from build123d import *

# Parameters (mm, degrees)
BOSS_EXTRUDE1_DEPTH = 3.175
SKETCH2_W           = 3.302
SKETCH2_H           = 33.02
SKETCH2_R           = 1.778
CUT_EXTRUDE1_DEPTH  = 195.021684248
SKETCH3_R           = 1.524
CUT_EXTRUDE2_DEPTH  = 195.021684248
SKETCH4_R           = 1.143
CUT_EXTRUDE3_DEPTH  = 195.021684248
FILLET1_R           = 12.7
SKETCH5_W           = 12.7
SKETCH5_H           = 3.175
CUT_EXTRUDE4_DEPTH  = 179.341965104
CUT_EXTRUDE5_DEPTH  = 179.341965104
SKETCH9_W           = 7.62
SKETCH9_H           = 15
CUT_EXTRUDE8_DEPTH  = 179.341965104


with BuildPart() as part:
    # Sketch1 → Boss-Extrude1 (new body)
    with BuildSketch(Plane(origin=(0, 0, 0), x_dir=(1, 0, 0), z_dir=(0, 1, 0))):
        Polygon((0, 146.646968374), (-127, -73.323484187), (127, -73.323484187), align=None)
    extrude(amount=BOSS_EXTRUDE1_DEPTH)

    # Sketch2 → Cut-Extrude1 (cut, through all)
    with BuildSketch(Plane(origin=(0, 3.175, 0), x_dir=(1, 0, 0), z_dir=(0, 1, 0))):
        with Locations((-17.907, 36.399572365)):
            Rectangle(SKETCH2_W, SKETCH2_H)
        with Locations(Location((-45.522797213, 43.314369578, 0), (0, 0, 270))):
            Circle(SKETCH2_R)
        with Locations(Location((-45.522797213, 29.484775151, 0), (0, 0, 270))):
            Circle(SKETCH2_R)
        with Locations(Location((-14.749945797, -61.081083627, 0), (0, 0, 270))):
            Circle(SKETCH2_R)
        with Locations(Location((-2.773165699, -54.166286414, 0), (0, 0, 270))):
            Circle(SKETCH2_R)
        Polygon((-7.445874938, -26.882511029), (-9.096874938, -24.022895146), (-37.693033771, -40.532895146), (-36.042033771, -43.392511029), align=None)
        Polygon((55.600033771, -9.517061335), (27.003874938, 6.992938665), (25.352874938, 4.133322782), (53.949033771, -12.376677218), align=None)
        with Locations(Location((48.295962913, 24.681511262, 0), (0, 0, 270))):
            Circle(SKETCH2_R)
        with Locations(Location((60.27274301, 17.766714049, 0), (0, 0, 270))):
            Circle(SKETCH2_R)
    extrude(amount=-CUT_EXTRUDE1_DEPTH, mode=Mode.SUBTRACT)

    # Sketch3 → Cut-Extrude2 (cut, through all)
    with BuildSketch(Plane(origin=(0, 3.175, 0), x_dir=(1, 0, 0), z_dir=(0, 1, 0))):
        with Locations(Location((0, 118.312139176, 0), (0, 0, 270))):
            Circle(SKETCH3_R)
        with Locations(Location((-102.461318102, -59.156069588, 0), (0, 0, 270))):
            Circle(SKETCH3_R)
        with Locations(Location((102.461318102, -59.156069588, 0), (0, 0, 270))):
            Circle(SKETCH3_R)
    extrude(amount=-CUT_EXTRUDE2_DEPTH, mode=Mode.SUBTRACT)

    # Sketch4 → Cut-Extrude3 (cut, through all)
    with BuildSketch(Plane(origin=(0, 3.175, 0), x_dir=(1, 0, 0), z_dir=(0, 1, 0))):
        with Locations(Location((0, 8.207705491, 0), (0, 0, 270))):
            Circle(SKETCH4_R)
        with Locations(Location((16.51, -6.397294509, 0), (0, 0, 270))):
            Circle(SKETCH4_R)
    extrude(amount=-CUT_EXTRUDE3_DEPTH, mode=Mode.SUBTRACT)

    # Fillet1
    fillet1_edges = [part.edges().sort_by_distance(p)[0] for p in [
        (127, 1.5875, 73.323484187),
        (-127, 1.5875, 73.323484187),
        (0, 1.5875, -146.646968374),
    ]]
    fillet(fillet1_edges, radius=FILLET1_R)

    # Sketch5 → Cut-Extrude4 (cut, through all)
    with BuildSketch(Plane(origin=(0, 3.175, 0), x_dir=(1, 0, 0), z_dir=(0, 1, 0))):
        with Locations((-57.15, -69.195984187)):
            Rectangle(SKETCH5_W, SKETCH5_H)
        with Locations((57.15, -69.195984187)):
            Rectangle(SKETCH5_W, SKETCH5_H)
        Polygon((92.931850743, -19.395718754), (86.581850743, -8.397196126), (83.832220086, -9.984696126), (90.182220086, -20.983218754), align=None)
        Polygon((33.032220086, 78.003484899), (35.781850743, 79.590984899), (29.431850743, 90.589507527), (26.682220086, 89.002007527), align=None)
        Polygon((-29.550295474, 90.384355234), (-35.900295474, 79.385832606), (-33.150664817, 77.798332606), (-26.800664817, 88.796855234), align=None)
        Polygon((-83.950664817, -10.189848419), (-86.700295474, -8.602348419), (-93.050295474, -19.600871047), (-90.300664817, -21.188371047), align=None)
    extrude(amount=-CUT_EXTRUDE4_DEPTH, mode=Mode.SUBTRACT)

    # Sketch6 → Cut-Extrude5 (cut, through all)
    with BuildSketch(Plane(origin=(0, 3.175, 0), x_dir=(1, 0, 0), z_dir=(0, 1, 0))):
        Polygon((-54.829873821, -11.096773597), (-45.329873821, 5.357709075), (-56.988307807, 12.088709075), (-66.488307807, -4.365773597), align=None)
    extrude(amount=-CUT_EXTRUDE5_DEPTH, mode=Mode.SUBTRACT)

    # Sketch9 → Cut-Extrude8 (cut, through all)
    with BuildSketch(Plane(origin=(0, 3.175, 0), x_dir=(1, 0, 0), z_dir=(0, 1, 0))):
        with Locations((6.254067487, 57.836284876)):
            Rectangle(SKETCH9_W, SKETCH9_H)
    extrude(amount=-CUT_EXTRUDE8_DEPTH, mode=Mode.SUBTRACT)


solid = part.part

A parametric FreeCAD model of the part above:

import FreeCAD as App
import Part
import Sketcher
Q = App.Units.Quantity


def edges_at(feature, points):
    """Names of the edges that pass closest to the given points."""
    edges = feature.Shape.Edges
    near = lambda p: min(range(len(edges)), key=lambda i: edges[i].distToShape(Part.Vertex(*p))[0])
    return sorted({f"Edge{near(p) + 1}" for p in points})


def add_polygon(sketch, points):
    """Adds a closed chain of lines whose ends are joined by coincident constraints."""
    first, n = sketch.GeometryCount, len(points)
    for a, b in zip(points, points[1:] + points[:1]):
        sketch.addGeometry(Part.LineSegment(App.Vector(*a, 0), App.Vector(*b, 0)), False)
    for i in range(n):
        sketch.addConstraint(Sketcher.Constraint("Coincident", first + i, 2, first + (i + 1) % n, 1))

doc = App.newDocument("Part")
body = doc.addObject("PartDesign::Body", "Body")

sketch1 = body.newObject("Sketcher::SketchObject", "Sketch")
sketch1.AttachmentSupport = (doc.getObject("XZ_Plane"), [""])
sketch1.MapMode = "FlatFace"
add_polygon(sketch1, [(0, -147), (-127, 73), (127, 73)])
sketch1.addConstraint(Sketcher.Constraint("Horizontal", 1))
sketch1.addConstraint(Sketcher.Constraint("PointOnObject", 2, 2, -2))
sketch1.addConstraint(Sketcher.Constraint("Equal", 0, 2))
sketch1.addConstraint(Sketcher.Constraint("DistanceX", 1, 1, 1, 2, Q("10 in")))
sketch1.addConstraint(Sketcher.Constraint("Distance", 0, Q("10 in")))
sketch1.addConstraint(Sketcher.Constraint("DistanceY", 2, 2, -1, 1, Q("146.646968 mm")))
pad1 = body.newObject("PartDesign::Pad", "Pad")
pad1.Profile = sketch1
pad1.Length = Q("0.125 in")
pad1.Reversed = True

sketch2 = body.newObject("Sketcher::SketchObject", "Sketch001")
sketch2.AttachmentSupport = (doc.getObject("XZ_Plane"), [""])
sketch2.MapMode = "FlatFace"
sketch2.AttachmentOffset = App.Placement(App.Vector(0, 0, -0.125 * 25.4), App.Rotation())
add_polygon(sketch2, [(-19.6, -52.9), (-19.6, -19.9), (-16.3, -19.9), (-16.3, -52.9)])
sketch2.addGeometry(Part.Circle(App.Vector(-45.5, -43.3, 0), App.Vector(0, 0, 1), 1.8), False)
sketch2.addGeometry(Part.Circle(App.Vector(-45.5, -29.5, 0), App.Vector(0, 0, 1), 1.8), False)
sketch2.addGeometry(Part.Circle(App.Vector(-14.7, 61.1, 0), App.Vector(0, 0, 1), 1.8), False)
sketch2.addGeometry(Part.Circle(App.Vector(-2.8, 54.2, 0), App.Vector(0, 0, 1), 1.8), False)
add_polygon(sketch2, [(-7.4, 26.9), (-9.1, 24), (-37.7, 40.5), (-36, 43.4)])
add_polygon(sketch2, [(55.6, 9.5), (27, -7), (25.4, -4.1), (53.9, 12.4)])
sketch2.addGeometry(Part.Circle(App.Vector(48.3, -24.7, 0), App.Vector(0, 0, 1), 1.8), False)
sketch2.addGeometry(Part.Circle(App.Vector(60.3, -17.8, 0), App.Vector(0, 0, 1), 1.8), False)
sketch2.addConstraint(Sketcher.Constraint("Vertical", 0))
sketch2.addConstraint(Sketcher.Constraint("Horizontal", 1))
sketch2.addConstraint(Sketcher.Constraint("Vertical", 2))
sketch2.addConstraint(Sketcher.Constraint("Horizontal", 3))
sketch2.addConstraint(Sketcher.Constraint("Equal", 4, 5))
sketch2.addConstraint(Sketcher.Constraint("Equal", 5, 6))
sketch2.addConstraint(Sketcher.Constraint("Equal", 6, 7))
sketch2.addConstraint(Sketcher.Constraint("Equal", 7, 16))
sketch2.addConstraint(Sketcher.Constraint("Equal", 16, 17))
sketch2.addConstraint(Sketcher.Constraint("Perpendicular", 8, 9))
sketch2.addConstraint(Sketcher.Constraint("Perpendicular", 9, 10))
sketch2.addConstraint(Sketcher.Constraint("Perpendicular", 10, 11))
sketch2.addConstraint(Sketcher.Constraint("Perpendicular", 12, 13))
sketch2.addConstraint(Sketcher.Constraint("Perpendicular", 13, 14))
sketch2.addConstraint(Sketcher.Constraint("Perpendicular", 14, 15))
sketch2.addConstraint(Sketcher.Constraint("Vertical", 4, 3, 5, 3))
sketch2.addConstraint(Sketcher.Constraint("Equal", 11, 12))
sketch2.addConstraint(Sketcher.Constraint("Equal", 10, 13))
sketch2.addConstraint(Sketcher.Constraint("Diameter", 4, Q("0.14 in")))
sketch2.addConstraint(Sketcher.Constraint("DistanceY", 0, 1, 0, 2, Q("1.3 in")))
sketch2.addConstraint(Sketcher.Constraint("Angle", 8, Q("-120 deg")))
sketch2.addConstraint(Sketcher.Constraint("Angle", 12, Q("-150 deg")))
sketch2.addConstraint(Sketcher.Constraint("Distance", 9, Q("1.3 in")))
sketch2.addConstraint(Sketcher.Constraint("DistanceX", 1, 1, 1, 2, Q("0.13 in")))
sketch2.addConstraint(Sketcher.Constraint("Distance", 8, Q("0.13 in")))
sketch2.addConstraint(Sketcher.Constraint("DistanceX", 0, 2, -1, 1, Q("0.77 in")))
sketch2.addConstraint(Sketcher.Constraint("DistanceY", 17, 3, 7, 3, Q("71.933 mm")))
sketch2.addConstraint(Sketcher.Constraint("DistanceY", 4, 3, -1, 1, Q("43.31437 mm")))
sketch2.addConstraint(Sketcher.Constraint("DistanceY", 16, 3, -1, 1, Q("24.681511 mm")))
sketch2.addConstraint(Sketcher.Constraint("DistanceY", -1, 1, 10, 2, Q("43.392511 mm")))
sketch2.addConstraint(Sketcher.Constraint("DistanceY", 12, 2, -1, 1, Q("6.992939 mm")))
sketch2.addConstraint(Sketcher.Constraint("DistanceX", 5, 3, 6, 3, Q("30.772851 mm")))
sketch2.addConstraint(Sketcher.Constraint("DistanceY", 5, 3, 6, 3, Q("90.565859 mm")))
sketch2.addConstraint(Sketcher.Constraint("DistanceX", 6, 3, 7, 3, Q("11.97678 mm")))
sketch2.addConstraint(Sketcher.Constraint("DistanceY", 5, 3, 7, 3, Q("83.651062 mm")))
sketch2.addConstraint(Sketcher.Constraint("DistanceX", 7, 3, 16, 3, Q("51.069129 mm")))
sketch2.addConstraint(Sketcher.Constraint("DistanceX", 16, 3, 17, 3, Q("11.97678 mm")))
sketch2.addConstraint(Sketcher.Constraint("DistanceY", 16, 3, 0, 2, Q("4.791939 mm")))
sketch2.addConstraint(Sketcher.Constraint("DistanceY", 0, 2, 7, 3, Q("74.055859 mm")))
sketch2.addConstraint(Sketcher.Constraint("DistanceX", 8, 2, 7, 3, Q("6.323709 mm")))
sketch2.addConstraint(Sketcher.Constraint("DistanceX", 12, 2, 17, 3, Q("33.268868 mm")))
sketch2.addConstraint(Sketcher.Constraint("DistanceX", 4, 3, -1, 1, Q("45.522797 mm")))
pocket1 = body.newObject("PartDesign::Pocket", "Pocket")
pocket1.Profile = sketch2
pocket1.Type = "ThroughAll"
pocket1.Reversed = True

sketch3 = body.newObject("Sketcher::SketchObject", "Sketch002")
sketch3.AttachmentSupport = (doc.getObject("XZ_Plane"), [""])
sketch3.MapMode = "FlatFace"
sketch3.AttachmentOffset = App.Placement(App.Vector(0, 0, -0.125 * 25.4), App.Rotation())
sketch3.addGeometry(Part.Circle(App.Vector(0, -118.3, 0), App.Vector(0, 0, 1), 1.5), False)
sketch3.addGeometry(Part.Circle(App.Vector(-102.5, 59.2, 0), App.Vector(0, 0, 1), 1.5), False)
sketch3.addGeometry(Part.Circle(App.Vector(102.5, 59.2, 0), App.Vector(0, 0, 1), 1.5), False)
sketch3.addConstraint(Sketcher.Constraint("Equal", 0, 1))
sketch3.addConstraint(Sketcher.Constraint("Equal", 1, 2))
sketch3.addConstraint(Sketcher.Constraint("Symmetric", 1, 3, 2, 3, -2))
sketch3.addConstraint(Sketcher.Constraint("PointOnObject", 0, 3, -2))
sketch3.addConstraint(Sketcher.Constraint("Diameter", 0, Q("0.12 in")))
sketch3.addConstraint(Sketcher.Constraint("DistanceY", 0, 3, -1, 1, Q("118.312139 mm")))
sketch3.addConstraint(Sketcher.Constraint("DistanceX", 1, 3, -1, 1, Q("102.461318 mm")))
sketch3.addConstraint(Sketcher.Constraint("DistanceY", -1, 1, 1, 3, Q("59.15607 mm")))
pocket2 = body.newObject("PartDesign::Pocket", "Pocket001")
pocket2.Profile = sketch3
pocket2.Type = "ThroughAll"
pocket2.Reversed = True

sketch4 = body.newObject("Sketcher::SketchObject", "Sketch003")
sketch4.AttachmentSupport = (doc.getObject("XZ_Plane"), [""])
sketch4.MapMode = "FlatFace"
sketch4.AttachmentOffset = App.Placement(App.Vector(0, 0, -0.125 * 25.4), App.Rotation())
sketch4.addGeometry(Part.Circle(App.Vector(0, -8.2, 0), App.Vector(0, 0, 1), 1.1), False)
sketch4.addGeometry(Part.Circle(App.Vector(16.5, 6.4, 0), App.Vector(0, 0, 1), 1.1), False)
sketch4.addConstraint(Sketcher.Constraint("Equal", 0, 1))
sketch4.addConstraint(Sketcher.Constraint("PointOnObject", 0, 3, -2))
sketch4.addConstraint(Sketcher.Constraint("Diameter", 0, Q("0.09 in")))
sketch4.addConstraint(Sketcher.Constraint("DistanceX", -1, 1, 1, 3, Q("0.65 in")))
sketch4.addConstraint(Sketcher.Constraint("DistanceY", 0, 3, 1, 3, Q("0.575 in")))
sketch4.addConstraint(Sketcher.Constraint("DistanceY", 0, 3, -1, 1, Q("8.207705 mm")))
pocket3 = body.newObject("PartDesign::Pocket", "Pocket002")
pocket3.Profile = sketch4
pocket3.Type = "ThroughAll"
pocket3.Reversed = True
doc.recompute()

fillet = body.newObject("PartDesign::Fillet", "Fillet")
fillet.Base = (pocket3, edges_at(pocket3, [(127, 1.587, 73.323), (-127, 1.587, 73.323), (0, 1.587, -146.647)]))
fillet.Radius = Q("0.5 in")

sketch5 = body.newObject("Sketcher::SketchObject", "Sketch004")
sketch5.AttachmentSupport = (doc.getObject("XZ_Plane"), [""])
sketch5.MapMode = "FlatFace"
sketch5.AttachmentOffset = App.Placement(App.Vector(0, 0, -0.125 * 25.4), App.Rotation())
add_polygon(sketch5, [(-63.5, 67.6), (-63.5, 70.8), (-50.8, 70.8), (-50.8, 67.6)])
add_polygon(sketch5, [(50.8, 67.6), (50.8, 70.8), (63.5, 70.8), (63.5, 67.6)])
add_polygon(sketch5, [(92.9, 19.4), (86.6, 8.4), (83.8, 10), (90.2, 21)])
add_polygon(sketch5, [(33, -78), (35.8, -79.6), (29.4, -90.6), (26.7, -89)])
add_polygon(sketch5, [(-29.6, -90.4), (-35.9, -79.4), (-33.2, -77.8), (-26.8, -88.8)])
add_polygon(sketch5, [(-84, 10.2), (-86.7, 8.6), (-93.1, 19.6), (-90.3, 21.2)])
sketch5.addConstraint(Sketcher.Constraint("Vertical", 0))
sketch5.addConstraint(Sketcher.Constraint("Horizontal", 1))
sketch5.addConstraint(Sketcher.Constraint("Vertical", 2))
sketch5.addConstraint(Sketcher.Constraint("Horizontal", 3))
sketch5.addConstraint(Sketcher.Constraint("Vertical", 4))
sketch5.addConstraint(Sketcher.Constraint("Horizontal", 5))
sketch5.addConstraint(Sketcher.Constraint("Vertical", 6))
sketch5.addConstraint(Sketcher.Constraint("Horizontal", 7))
sketch5.addConstraint(Sketcher.Constraint("Symmetric", 1, 2, 4, 2, -2))
sketch5.addConstraint(Sketcher.Constraint("Symmetric", 3, 2, 6, 2, -2))
sketch5.addConstraint(Sketcher.Constraint("Perpendicular", 8, 9))
sketch5.addConstraint(Sketcher.Constraint("Perpendicular", 9, 10))
sketch5.addConstraint(Sketcher.Constraint("Perpendicular", 10, 11))
sketch5.addConstraint(Sketcher.Constraint("Parallel", 11, 12))
sketch5.addConstraint(Sketcher.Constraint("Perpendicular", 12, 13))
sketch5.addConstraint(Sketcher.Constraint("Perpendicular", 13, 14))
sketch5.addConstraint(Sketcher.Constraint("Perpendicular", 14, 15))
sketch5.addConstraint(Sketcher.Constraint("Perpendicular", 16, 17))
sketch5.addConstraint(Sketcher.Constraint("Perpendicular", 17, 18))
sketch5.addConstraint(Sketcher.Constraint("Perpendicular", 18, 19))
sketch5.addConstraint(Sketcher.Constraint("Parallel", 19, 20))
sketch5.addConstraint(Sketcher.Constraint("Perpendicular", 20, 21))
sketch5.addConstraint(Sketcher.Constraint("Perpendicular", 21, 22))
sketch5.addConstraint(Sketcher.Constraint("Perpendicular", 22, 23))
sketch5.addConstraint(Sketcher.Constraint("Equal", 11, 12))
sketch5.addConstraint(Sketcher.Constraint("Equal", 10, 13))
sketch5.addConstraint(Sketcher.Constraint("Equal", 15, 16))
sketch5.addConstraint(Sketcher.Constraint("Equal", 14, 17))
sketch5.addConstraint(Sketcher.Constraint("Equal", 19, 20))
sketch5.addConstraint(Sketcher.Constraint("Equal", 18, 21))
sketch5.addConstraint(Sketcher.Constraint("DistanceX", 1, 1, 1, 2, Q("0.5 in")))
sketch5.addConstraint(Sketcher.Constraint("DistanceX", 1, 2, -1, 1, Q("2 in")))
sketch5.addConstraint(Sketcher.Constraint("Angle", 8, Q("-120 deg")))
sketch5.addConstraint(Sketcher.Constraint("Angle", 16, Q("120 deg")))
sketch5.addConstraint(Sketcher.Constraint("DistanceX", 12, 2, 8, 2, Q("2 in")))
sketch5.addConstraint(Sketcher.Constraint("DistanceX", 20, 2, 16, 2, Q("2 in")))
sketch5.addConstraint(Sketcher.Constraint("Distance", 8, Q("0.5 in")))
sketch5.addConstraint(Sketcher.Constraint("DistanceY", 0, 1, 0, 2, Q("0.125 in")))
sketch5.addConstraint(Sketcher.Constraint("Distance", 9, Q("0.125 in")))
sketch5.addConstraint(Sketcher.Constraint("DistanceX", -1, 1, 8, 2, Q("86.581851 mm")))
sketch5.addConstraint(Sketcher.Constraint("DistanceY", -1, 1, 10, 2, Q("20.983219 mm")))
sketch5.addConstraint(Sketcher.Constraint("DistanceY", -1, 1, 20, 2, Q("8.602348 mm")))
sketch5.addConstraint(Sketcher.Constraint("DistanceY", 8, 2, 6, 2, Q("59.211288 mm")))
sketch5.addConstraint(Sketcher.Constraint("DistanceY", 12, 2, 8, 2, Q("87.988181 mm")))
sketch5.addConstraint(Sketcher.Constraint("DistanceY", 18, 2, 15, 2, Q("10.79337 mm")))
sketch5.addConstraint(Sketcher.Constraint("DistanceX", 16, 2, -1, 1, Q("35.900295 mm")))
pocket4 = body.newObject("PartDesign::Pocket", "Pocket003")
pocket4.Profile = sketch5
pocket4.Type = "ThroughAll"
pocket4.Reversed = True

sketch6 = body.newObject("Sketcher::SketchObject", "Sketch005")
sketch6.AttachmentSupport = (doc.getObject("XZ_Plane"), [""])
sketch6.MapMode = "FlatFace"
sketch6.AttachmentOffset = App.Placement(App.Vector(0, 0, -0.125 * 25.4), App.Rotation())
add_polygon(sketch6, [(-55, 11), (-45, -5), (-57, -12), (-66, 4)])
sketch6.addConstraint(Sketcher.Constraint("Perpendicular", 0, 1))
sketch6.addConstraint(Sketcher.Constraint("Perpendicular", 1, 2))
sketch6.addConstraint(Sketcher.Constraint("Perpendicular", 2, 3))
sketch6.addConstraint(Sketcher.Constraint("Angle", 0, Q("-60 deg")))
sketch6.addConstraint(Sketcher.Constraint("Distance", 1, Q("0.53 in")))
sketch6.addConstraint(Sketcher.Constraint("Distance", 0, Q("19 mm")))
sketch6.addConstraint(Sketcher.Constraint("DistanceY", 0, 2, -1, 1, Q("5.357709 mm")))
sketch6.addConstraint(Sketcher.Constraint("DistanceX", 0, 2, -1, 1, Q("45.329874 mm")))
pocket5 = body.newObject("PartDesign::Pocket", "Pocket004")
pocket5.Profile = sketch6
pocket5.Type = "ThroughAll"
pocket5.Reversed = True

sketch7 = body.newObject("Sketcher::SketchObject", "Sketch006")
sketch7.AttachmentSupport = (doc.getObject("XZ_Plane"), [""])
sketch7.MapMode = "FlatFace"
sketch7.AttachmentOffset = App.Placement(App.Vector(0, 0, -0.125 * 25.4), App.Rotation())
add_polygon(sketch7, [(2, -65), (2, -50), (10, -50), (10, -65)])
sketch7.addConstraint(Sketcher.Constraint("Vertical", 0))
sketch7.addConstraint(Sketcher.Constraint("Horizontal", 1))
sketch7.addConstraint(Sketcher.Constraint("Vertical", 2))
sketch7.addConstraint(Sketcher.Constraint("Horizontal", 3))
sketch7.addConstraint(Sketcher.Constraint("DistanceX", 1, 1, 1, 2, Q("0.3 in")))
sketch7.addConstraint(Sketcher.Constraint("DistanceY", 0, 1, 0, 2, Q("15 mm")))
sketch7.addConstraint(Sketcher.Constraint("DistanceX", -1, 1, 0, 2, Q("2.444067 mm")))
sketch7.addConstraint(Sketcher.Constraint("DistanceY", 0, 2, -1, 1, Q("50.336285 mm")))
pocket6 = body.newObject("PartDesign::Pocket", "Pocket005")
pocket6.Profile = sketch7
pocket6.Type = "ThroughAll"
pocket6.Reversed = True

doc.recompute()
